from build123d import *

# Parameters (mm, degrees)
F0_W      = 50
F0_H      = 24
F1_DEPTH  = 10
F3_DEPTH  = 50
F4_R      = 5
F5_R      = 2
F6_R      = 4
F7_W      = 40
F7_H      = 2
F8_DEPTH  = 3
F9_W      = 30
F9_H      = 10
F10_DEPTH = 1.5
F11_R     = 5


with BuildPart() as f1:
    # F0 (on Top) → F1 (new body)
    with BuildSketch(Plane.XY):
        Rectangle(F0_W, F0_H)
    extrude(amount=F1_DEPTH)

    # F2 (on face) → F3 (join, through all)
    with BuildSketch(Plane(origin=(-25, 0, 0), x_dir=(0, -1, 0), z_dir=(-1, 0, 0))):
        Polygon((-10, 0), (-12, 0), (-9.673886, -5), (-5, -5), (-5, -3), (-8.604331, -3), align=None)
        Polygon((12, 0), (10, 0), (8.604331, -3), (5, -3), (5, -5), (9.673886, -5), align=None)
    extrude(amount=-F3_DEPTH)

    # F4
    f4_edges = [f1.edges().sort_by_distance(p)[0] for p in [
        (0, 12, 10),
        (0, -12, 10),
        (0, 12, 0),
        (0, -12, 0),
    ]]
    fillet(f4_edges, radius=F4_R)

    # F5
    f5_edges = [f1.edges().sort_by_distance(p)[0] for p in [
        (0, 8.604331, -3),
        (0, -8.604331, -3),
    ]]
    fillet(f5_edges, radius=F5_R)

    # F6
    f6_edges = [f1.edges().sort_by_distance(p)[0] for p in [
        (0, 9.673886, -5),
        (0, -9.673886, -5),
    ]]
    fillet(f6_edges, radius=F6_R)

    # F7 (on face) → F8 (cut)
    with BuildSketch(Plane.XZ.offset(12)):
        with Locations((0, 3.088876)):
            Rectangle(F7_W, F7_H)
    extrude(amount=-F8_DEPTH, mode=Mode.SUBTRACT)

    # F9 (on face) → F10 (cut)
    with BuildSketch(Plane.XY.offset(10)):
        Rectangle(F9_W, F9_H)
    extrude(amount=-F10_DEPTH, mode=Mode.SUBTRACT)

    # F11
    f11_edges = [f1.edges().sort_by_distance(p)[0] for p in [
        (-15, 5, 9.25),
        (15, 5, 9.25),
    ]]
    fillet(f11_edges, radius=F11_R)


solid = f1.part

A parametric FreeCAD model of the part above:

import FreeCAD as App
import Part
import Sketcher
from FreeCAD import Vector


def edges_at(feature, points):
    """Names of the edges that pass closest to the given points."""
    edges = feature.Shape.Edges
    near = lambda p: min(range(len(edges)), key=lambda i: edges[i].distToShape(Part.Vertex(*p))[0])
    return sorted({f"Edge{near(p) + 1}" for p in points})

doc = App.newDocument("Part")
body = doc.addObject("PartDesign::Body", "Body")

# Sketch on XY plane
sketch1 = body.newObject("Sketcher::SketchObject", "Sketch")
sketch1.AttachmentSupport = (doc.getObject("XY_Plane"), [""])
sketch1.MapMode = "FlatFace"
sketch1.addGeometry(Part.LineSegment(Vector(-25, 12, 0), Vector(-25, -12, 0)), False)
sketch1.addGeometry(Part.LineSegment(Vector(-25, -12, 0), Vector(25, -12, 0)), False)
sketch1.addGeometry(Part.LineSegment(Vector(25, -12, 0), Vector(25, 12, 0)), False)
sketch1.addGeometry(Part.LineSegment(Vector(25, 12, 0), Vector(-25, 12, 0)), False)
sketch1.addConstraint(Sketcher.Constraint("Coincident", 0, 2, 1, 1))
sketch1.addConstraint(Sketcher.Constraint("Coincident", 1, 2, 2, 1))
sketch1.addConstraint(Sketcher.Constraint("Coincident", 2, 2, 3, 1))
sketch1.addConstraint(Sketcher.Constraint("Coincident", 3, 2, 0, 1))
sketch1.addConstraint(Sketcher.Constraint("Vertical", 0))
sketch1.addConstraint(Sketcher.Constraint("Horizontal", 1))
sketch1.addConstraint(Sketcher.Constraint("Vertical", 2))
sketch1.addConstraint(Sketcher.Constraint("Horizontal", 3))
sketch1.addConstraint(Sketcher.Constraint("Symmetric", 0, 2, 2, 2, -1, 1))
sketch1.addConstraint(Sketcher.Constraint("DistanceX", 1, 1, 1, 2, 50.0))
sketch1.addConstraint(Sketcher.Constraint("DistanceY", 0, 2, 0, 1, 24.0))
pad1 = body.newObject("PartDesign::Pad", "Pad")
pad1.Profile = sketch1
pad1.Length = 10

# Sketch on YZ plane
sketch2 = body.newObject("Sketcher::SketchObject", "Sketch001")
sketch2.AttachmentSupport = (doc.getObject("YZ_Plane"), [""])
sketch2.MapMode = "FlatFace"
sketch2.AttachmentOffset = App.Placement(Vector(0, 0, -25), App.Rotation())
sketch2.addGeometry(Part.LineSegment(Vector(10, 0, 0), Vector(12, 0, 0)), False)
sketch2.addGeometry(Part.LineSegment(Vector(12, 0, 0), Vector(9.7, -5, 0)), False)
sketch2.addGeometry(Part.LineSegment(Vector(9.7, -5, 0), Vector(5, -5, 0)), False)
sketch2.addGeometry(Part.LineSegment(Vector(5, -5, 0), Vector(5, -3, 0)), False)
sketch2.addGeometry(Part.LineSegment(Vector(5, -3, 0), Vector(8.6, -3, 0)), False)
sketch2.addGeometry(Part.LineSegment(Vector(8.6, -3, 0), Vector(10, 0, 0)), False)
sketch2.addGeometry(Part.LineSegment(Vector(-12, 0, 0), Vector(-10, 0, 0)), False)
sketch2.addGeometry(Part.LineSegment(Vector(-10, 0, 0), Vector(-8.6, -3, 0)), False)
sketch2.addGeometry(Part.LineSegment(Vector(-8.6, -3, 0), Vector(-5, -3, 0)), False)
sketch2.addGeometry(Part.LineSegment(Vector(-5, -3, 0), Vector(-5, -5, 0)), False)
sketch2.addGeometry(Part.LineSegment(Vector(-5, -5, 0), Vector(-9.7, -5, 0)), False)
sketch2.addGeometry(Part.LineSegment(Vector(-9.7, -5, 0), Vector(-12, 0, 0)), False)
sketch2.addConstraint(Sketcher.Constraint("Coincident", 0, 2, 1, 1))
sketch2.addConstraint(Sketcher.Constraint("Coincident", 1, 2, 2, 1))
sketch2.addConstraint(Sketcher.Constraint("Coincident", 2, 2, 3, 1))
sketch2.addConstraint(Sketcher.Constraint("Coincident", 3, 2, 4, 1))
sketch2.addConstraint(Sketcher.Constraint("Coincident", 4, 2, 5, 1))
sketch2.addConstraint(Sketcher.Constraint("Coincident", 5, 2, 0, 1))
sketch2.addConstraint(Sketcher.Constraint("Coincident", 6, 2, 7, 1))
sketch2.addConstraint(Sketcher.Constraint("Coincident", 7, 2, 8, 1))
sketch2.addConstraint(Sketcher.Constraint("Coincident", 8, 2, 9, 1))
sketch2.addConstraint(Sketcher.Constraint("Coincident", 9, 2, 10, 1))
sketch2.addConstraint(Sketcher.Constraint("Coincident", 10, 2, 11, 1))
sketch2.addConstraint(Sketcher.Constraint("Coincident", 11, 2, 6, 1))
sketch2.addConstraint(Sketcher.Constraint("Horizontal", 0))
sketch2.addConstraint(Sketcher.Constraint("Horizontal", 2))
sketch2.addConstraint(Sketcher.Constraint("Vertical", 3))
sketch2.addConstraint(Sketcher.Constraint("Horizontal", 4))
sketch2.addConstraint(Sketcher.Constraint("Horizontal", 6))
sketch2.addConstraint(Sketcher.Constraint("Horizontal", 8))
sketch2.addConstraint(Sketcher.Constraint("Vertical", 9))
sketch2.addConstraint(Sketcher.Constraint("Horizontal", 10))
sketch2.addConstraint(Sketcher.Constraint("Symmetric", 5, 2, 6, 2, -1, 1))
sketch2.addConstraint(Sketcher.Constraint("Symmetric", 4, 2, 7, 2, -2))
sketch2.addConstraint(Sketcher.Constraint("Symmetric", 2, 2, 9, 2, -2))
sketch2.addConstraint(Sketcher.Constraint("Symmetric", 0, 2, 11, 2, -2))
sketch2.addConstraint(Sketcher.Constraint("Parallel", 1, 5))
sketch2.addConstraint(Sketcher.Constraint("Parallel", 7, 11))
sketch2.addConstraint(Sketcher.Constraint("Equal", 6, 3))
sketch2.addConstraint(Sketcher.Constraint("DistanceX", 0, 1, 0, 2, 2.0))
sketch2.addConstraint(Sketcher.Constraint("DistanceX", -1, 1, 0, 2, 12.0))
sketch2.addConstraint(Sketcher.Constraint("DistanceY", 1, 2, -1, 1, 5.0))
sketch2.addConstraint(Sketcher.Constraint("DistanceX", -1, 1, 2, 2, 5.0))
sketch2.addConstraint(Sketcher.Constraint("Distance", 1, 5.514599))
pad2 = body.newObject("PartDesign::Pad", "Pad001")
pad2.Profile = sketch2
pad2.Length = 50
doc.recompute()

fillet = body.newObject("PartDesign::Fillet", "Fillet")
fillet.Base = (pad2, edges_at(pad2, [
    (0, 12, 10),
    (0, -12, 10),
    (0, 12, 0),
    (0, -12, 0),
]))
fillet.Radius = 5
doc.recompute()

fillet2 = body.newObject("PartDesign::Fillet", "Fillet001")
fillet2.Base = (fillet, edges_at(fillet, [(0, 8.604, -3), (0, -8.604, -3)]))
fillet2.Radius = 2
doc.recompute()

fillet3 = body.newObject("PartDesign::Fillet", "Fillet002")
fillet3.Base = (fillet2, edges_at(fillet2, [(0, 9.674, -5), (0, -9.674, -5)]))
fillet3.Radius = 4

# Sketch on XZ plane
sketch3 = body.newObject("Sketcher::SketchObject", "Sketch002")
sketch3.AttachmentSupport = (doc.getObject("XZ_Plane"), [""])
sketch3.MapMode = "FlatFace"
sketch3.AttachmentOffset = App.Placement(Vector(0, 0, 12), App.Rotation())
sketch3.addGeometry(Part.LineSegment(Vector(-20, 4.1, 0), Vector(-20, 2.1, 0)), False)
sketch3.addGeometry(Part.LineSegment(Vector(-20, 2.1, 0), Vector(20, 2.1, 0)), False)
sketch3.addGeometry(Part.LineSegment(Vector(20, 2.1, 0), Vector(20, 4.1, 0)), False)
sketch3.addGeometry(Part.LineSegment(Vector(20, 4.1, 0), Vector(-20, 4.1, 0)), False)
sketch3.addConstraint(Sketcher.Constraint("Coincident", 0, 2, 1, 1))
sketch3.addConstraint(Sketcher.Constraint("Coincident", 1, 2, 2, 1))
sketch3.addConstraint(Sketcher.Constraint("Coincident", 2, 2, 3, 1))
sketch3.addConstraint(Sketcher.Constraint("Coincident", 3, 2, 0, 1))
sketch3.addConstraint(Sketcher.Constraint("Vertical", 0))
sketch3.addConstraint(Sketcher.Constraint("Horizontal", 1))
sketch3.addConstraint(Sketcher.Constraint("Vertical", 2))
sketch3.addConstraint(Sketcher.Constraint("Horizontal", 3))
sketch3.addConstraint(Sketcher.Constraint("DistanceX", 1, 1, 1, 2, 40.0))
sketch3.addConstraint(Sketcher.Constraint("DistanceY", 0, 2, 0, 1, 2.0))
sketch3.addConstraint(Sketcher.Constraint("DistanceX", 0, 2, -1, 1, 20.0))
sketch3.addConstraint(Sketcher.Constraint("DistanceY", -1, 1, 0, 2, 2.088876))
pocket1 = body.newObject("PartDesign::Pocket", "Pocket")
pocket1.Profile = sketch3
pocket1.Length = 3

# Sketch on XY plane
sketch4 = body.newObject("Sketcher::SketchObject", "Sketch003")
sketch4.AttachmentSupport = (doc.getObject("XY_Plane"), [""])
sketch4.MapMode = "FlatFace"
sketch4.AttachmentOffset = App.Placement(Vector(0, 0, 10), App.Rotation())
sketch4.addGeometry(Part.LineSegment(Vector(-15, 5, 0), Vector(-15, -5, 0)), False)
sketch4.addGeometry(Part.LineSegment(Vector(-15, -5, 0), Vector(15, -5, 0)), False)
sketch4.addGeometry(Part.LineSegment(Vector(15, -5, 0), Vector(15, 5, 0)), False)
sketch4.addGeometry(Part.LineSegment(Vector(15, 5, 0), Vector(-15, 5, 0)), False)
sketch4.addConstraint(Sketcher.Constraint("Coincident", 0, 2, 1, 1))
sketch4.addConstraint(Sketcher.Constraint("Coincident", 1, 2, 2, 1))
sketch4.addConstraint(Sketcher.Constraint("Coincident", 2, 2, 3, 1))
sketch4.addConstraint(Sketcher.Constraint("Coincident", 3, 2, 0, 1))
sketch4.addConstraint(Sketcher.Constraint("Vertical", 0))
sketch4.addConstraint(Sketcher.Constraint("Horizontal", 1))
sketch4.addConstraint(Sketcher.Constraint("Vertical", 2))
sketch4.addConstraint(Sketcher.Constraint("Horizontal", 3))
sketch4.addConstraint(Sketcher.Constraint("Symmetric", 0, 2, 2, 2, -1, 1))
sketch4.addConstraint(Sketcher.Constraint("DistanceX", 1, 1, 1, 2, 30.0))
sketch4.addConstraint(Sketcher.Constraint("DistanceY", 0, 2, 0, 1, 10.0))
pocket2 = body.newObject("PartDesign::Pocket", "Pocket001")
pocket2.Profile = sketch4
pocket2.Length = 1.5
doc.recompute()

fillet4 = body.newObject("PartDesign::Fillet", "Fillet003")
fillet4.Base = (pocket2, edges_at(pocket2, [(-15, 5, 9.25), (15, 5, 9.25)]))
fillet4.Radius = 5

doc.recompute()
